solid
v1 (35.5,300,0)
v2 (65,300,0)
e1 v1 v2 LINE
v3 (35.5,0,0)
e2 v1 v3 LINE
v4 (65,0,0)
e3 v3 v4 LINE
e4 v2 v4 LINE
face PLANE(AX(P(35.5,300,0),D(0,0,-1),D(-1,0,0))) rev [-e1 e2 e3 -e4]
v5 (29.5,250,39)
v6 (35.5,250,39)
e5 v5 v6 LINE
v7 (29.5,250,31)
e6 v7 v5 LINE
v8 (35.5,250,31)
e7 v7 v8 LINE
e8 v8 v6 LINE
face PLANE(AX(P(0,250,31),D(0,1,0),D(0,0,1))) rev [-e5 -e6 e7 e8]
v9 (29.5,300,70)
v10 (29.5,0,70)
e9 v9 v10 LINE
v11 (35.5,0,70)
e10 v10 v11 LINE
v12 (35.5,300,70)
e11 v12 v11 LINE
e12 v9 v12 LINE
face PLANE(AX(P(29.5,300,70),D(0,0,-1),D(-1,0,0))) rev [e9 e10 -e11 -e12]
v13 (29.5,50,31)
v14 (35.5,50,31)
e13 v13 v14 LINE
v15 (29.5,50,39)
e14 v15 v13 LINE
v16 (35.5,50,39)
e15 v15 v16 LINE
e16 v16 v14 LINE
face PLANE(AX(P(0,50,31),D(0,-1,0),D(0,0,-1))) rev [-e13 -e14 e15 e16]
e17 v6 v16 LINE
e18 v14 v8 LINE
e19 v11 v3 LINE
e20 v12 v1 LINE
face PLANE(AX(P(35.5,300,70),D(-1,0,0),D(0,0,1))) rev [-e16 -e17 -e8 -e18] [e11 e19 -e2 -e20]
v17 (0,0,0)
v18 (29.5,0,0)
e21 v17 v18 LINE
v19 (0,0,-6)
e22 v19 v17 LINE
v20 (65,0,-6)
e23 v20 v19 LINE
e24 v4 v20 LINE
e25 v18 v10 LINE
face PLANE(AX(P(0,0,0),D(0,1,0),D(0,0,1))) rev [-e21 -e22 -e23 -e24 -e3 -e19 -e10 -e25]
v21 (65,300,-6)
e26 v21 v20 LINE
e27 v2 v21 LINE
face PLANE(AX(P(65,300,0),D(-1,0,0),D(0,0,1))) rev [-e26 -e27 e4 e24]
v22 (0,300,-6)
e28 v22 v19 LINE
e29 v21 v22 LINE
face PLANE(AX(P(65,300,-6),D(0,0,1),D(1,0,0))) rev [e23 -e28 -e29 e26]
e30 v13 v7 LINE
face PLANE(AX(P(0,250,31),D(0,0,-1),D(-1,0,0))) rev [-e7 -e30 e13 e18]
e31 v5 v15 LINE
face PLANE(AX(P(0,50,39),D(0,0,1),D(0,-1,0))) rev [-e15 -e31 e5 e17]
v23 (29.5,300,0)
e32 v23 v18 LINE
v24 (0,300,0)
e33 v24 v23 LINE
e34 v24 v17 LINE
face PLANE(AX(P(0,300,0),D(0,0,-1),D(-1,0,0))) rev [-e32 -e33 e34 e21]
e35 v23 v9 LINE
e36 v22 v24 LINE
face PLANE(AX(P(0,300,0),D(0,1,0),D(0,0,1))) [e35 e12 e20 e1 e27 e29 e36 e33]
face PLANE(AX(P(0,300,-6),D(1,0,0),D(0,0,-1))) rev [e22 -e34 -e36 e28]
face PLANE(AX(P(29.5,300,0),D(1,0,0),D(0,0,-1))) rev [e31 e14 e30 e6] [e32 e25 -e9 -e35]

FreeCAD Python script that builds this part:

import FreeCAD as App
import Part
import Sketcher

V = App.Vector

doc = App.newDocument("Part")
body = doc.addObject("PartDesign::Body", "Body")

sketch1 = body.newObject("Sketcher::SketchObject", "Sketch")
sketch1.AttachmentSupport = (doc.getObject("XZ_Plane"), [""])
sketch1.MapMode = "FlatFace"
sketch1.addGeometry(Part.LineSegment(V(0, 0, 0), V(30, 0, 0)), False)
sketch1.addGeometry(Part.LineSegment(V(30, 0, 0), V(30, 70, 0)), False)
sketch1.addGeometry(Part.LineSegment(V(30, 70, 0), V(36, 70, 0)), False)
sketch1.addGeometry(Part.LineSegment(V(36, 70, 0), V(36, 0, 0)), False)
sketch1.addGeometry(Part.LineSegment(V(36, 0, 0), V(65, 0, 0)), False)
sketch1.addGeometry(Part.LineSegment(V(65, 0, 0), V(65, -6, 0)), False)
sketch1.addGeometry(Part.LineSegment(V(65, -6, 0), V(0, -6, 0)), False)
sketch1.addGeometry(Part.LineSegment(V(0, -6, 0), V(0, 0, 0)), False)
sketch1.addConstraint(Sketcher.Constraint("Coincident", 0, 2, 1, 1))
sketch1.addConstraint(Sketcher.Constraint("Coincident", 1, 2, 2, 1))
sketch1.addConstraint(Sketcher.Constraint("Coincident", 2, 2, 3, 1))
sketch1.addConstraint(Sketcher.Constraint("Coincident", 3, 2, 4, 1))
sketch1.addConstraint(Sketcher.Constraint("Coincident", 4, 2, 5, 1))
sketch1.addConstraint(Sketcher.Constraint("Coincident", 5, 2, 6, 1))
sketch1.addConstraint(Sketcher.Constraint("Coincident", 6, 2, 7, 1))
sketch1.addConstraint(Sketcher.Constraint("Coincident", 7, 2, 0, 1))
sketch1.addConstraint(Sketcher.Constraint("Horizontal", 0))
sketch1.addConstraint(Sketcher.Constraint("Vertical", 1))
sketch1.addConstraint(Sketcher.Constraint("Horizontal", 2))
sketch1.addConstraint(Sketcher.Constraint("Vertical", 3))
sketch1.addConstraint(Sketcher.Constraint("Horizontal", 4))
sketch1.addConstraint(Sketcher.Constraint("Vertical", 5))
sketch1.addConstraint(Sketcher.Constraint("Horizontal", 6))
sketch1.addConstraint(Sketcher.Constraint("Vertical", 7))
sketch1.addConstraint(Sketcher.Constraint("Coincident", 7, 2, -1, 1))
sketch1.addConstraint(Sketcher.Constraint("PointOnObject", 3, 2, -1))
sketch1.addConstraint(Sketcher.Constraint("Equal", 0, 4))
sketch1.addConstraint(Sketcher.Constraint("Equal", 2, 5))
sketch1.addConstraint(Sketcher.Constraint("DistanceX", 2, 1, 2, 2, 6.0))
sketch1.addConstraint(Sketcher.Constraint("DistanceX", 6, 2, 6, 1, 65.0))
sketch1.addConstraint(Sketcher.Constraint("DistanceY", 1, 1, 1, 2, 70.0))
pad1 = body.newObject("PartDesign::Pad", "Pad")
pad1.Profile = sketch1
pad1.Length = 300
pad1.Reversed = True

sketch2 = body.newObject("Sketcher::SketchObject", "Sketch001")
sketch2.AttachmentSupport = (doc.getObject("YZ_Plane"), [""])
sketch2.MapMode = "FlatFace"
sketch2.AttachmentOffset = App.Placement(V(0, 0, 35.5), App.Rotation())
sketch2.addGeometry(Part.LineSegment(V(250, 39, 0), V(50, 39, 0)), False)
sketch2.addGeometry(Part.LineSegment(V(50, 39, 0), V(50, 31, 0)), False)
sketch2.addGeometry(Part.LineSegment(V(50, 31, 0), V(250, 31, 0)), False)
sketch2.addGeometry(Part.LineSegment(V(250, 31, 0), V(250, 39, 0)), False)
sketch2.addConstraint(Sketcher.Constraint("Coincident", 0, 2, 1, 1))
sketch2.addConstraint(Sketcher.Constraint("Coincident", 1, 2, 2, 1))
sketch2.addConstraint(Sketcher.Constraint("Coincident", 2, 2, 3, 1))
sketch2.addConstraint(Sketcher.Constraint("Coincident", 3, 2, 0, 1))
sketch2.addConstraint(Sketcher.Constraint("Horizontal", 0))
sketch2.addConstraint(Sketcher.Constraint("Vertical", 1))
sketch2.addConstraint(Sketcher.Constraint("Horizontal", 2))
sketch2.addConstraint(Sketcher.Constraint("Vertical", 3))
sketch2.addConstraint(Sketcher.Constraint("DistanceX", 0, 2, 0, 1, 200.0))
sketch2.addConstraint(Sketcher.Constraint("DistanceY", 1, 2, 1, 1, 8.0))
sketch2.addConstraint(Sketcher.Constraint("DistanceX", -1, 1, 0, 2, 50.0))
sketch2.addConstraint(Sketcher.Constraint("DistanceY", -1, 1, 0, 2, 39.0))
pocket1 = body.newObject("PartDesign::Pocket", "Pocket")
pocket1.Profile = sketch2
pocket1.Type = "ThroughAll"

doc.recompute()
